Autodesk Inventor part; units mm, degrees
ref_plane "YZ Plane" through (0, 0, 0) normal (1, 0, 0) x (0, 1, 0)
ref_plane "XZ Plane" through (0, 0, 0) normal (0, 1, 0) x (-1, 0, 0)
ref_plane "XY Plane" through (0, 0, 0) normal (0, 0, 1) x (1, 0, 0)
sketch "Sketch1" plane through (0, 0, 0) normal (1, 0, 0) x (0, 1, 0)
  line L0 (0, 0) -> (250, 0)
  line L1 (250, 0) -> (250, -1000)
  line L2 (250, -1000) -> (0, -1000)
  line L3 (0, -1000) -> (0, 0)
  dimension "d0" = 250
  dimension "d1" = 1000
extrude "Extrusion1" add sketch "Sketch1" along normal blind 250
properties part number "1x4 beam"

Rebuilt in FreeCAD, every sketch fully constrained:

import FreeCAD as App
import Part
import Sketcher
from FreeCAD import Vector
Q = App.Units.Quantity


def add_polygon(sketch, points):
    """Adds a closed chain of lines whose ends are joined by coincident constraints."""
    first, n = sketch.GeometryCount, len(points)
    for a, b in zip(points, points[1:] + points[:1]):
        sketch.addGeometry(Part.LineSegment(App.Vector(*a, 0), App.Vector(*b, 0)), False)
    for i in range(n):
        sketch.addConstraint(Sketcher.Constraint("Coincident", first + i, 2, first + (i + 1) % n, 1))

doc = App.newDocument("Part")
body = doc.addObject("PartDesign::Body", "Body")

# Sketch on YZ plane
sketch1 = doc.addObject("Sketcher::SketchObject", "Sketch")
body.addObject(sketch1)
sketch1.AttachmentSupport = (doc.YZ_Plane, [""])
sketch1.MapMode = "FlatFace"
add_polygon(sketch1, [(250, 0), (0, 0), (0, -1000), (250, -1000)])  # lines 0-3
sketch1.addConstraint([
    Sketcher.Constraint("Horizontal", 0),
    Sketcher.Constraint("Vertical", 1),
    Sketcher.Constraint("Horizontal", 2),
    Sketcher.Constraint("Vertical", 3),
    Sketcher.Constraint("Coincident", 0, 2, -1, 1),
    Sketcher.Constraint("DistanceX", 0, 2, 0, 1, Q("250 mm")),
    Sketcher.Constraint("DistanceY", 1, 2, 1, 1, Q("1000 mm")),
])
pad1 = doc.addObject("PartDesign::Pad", "Pad")
body.addObject(pad1)
pad1.Profile = sketch1
pad1.Length = 250

doc.recompute()
